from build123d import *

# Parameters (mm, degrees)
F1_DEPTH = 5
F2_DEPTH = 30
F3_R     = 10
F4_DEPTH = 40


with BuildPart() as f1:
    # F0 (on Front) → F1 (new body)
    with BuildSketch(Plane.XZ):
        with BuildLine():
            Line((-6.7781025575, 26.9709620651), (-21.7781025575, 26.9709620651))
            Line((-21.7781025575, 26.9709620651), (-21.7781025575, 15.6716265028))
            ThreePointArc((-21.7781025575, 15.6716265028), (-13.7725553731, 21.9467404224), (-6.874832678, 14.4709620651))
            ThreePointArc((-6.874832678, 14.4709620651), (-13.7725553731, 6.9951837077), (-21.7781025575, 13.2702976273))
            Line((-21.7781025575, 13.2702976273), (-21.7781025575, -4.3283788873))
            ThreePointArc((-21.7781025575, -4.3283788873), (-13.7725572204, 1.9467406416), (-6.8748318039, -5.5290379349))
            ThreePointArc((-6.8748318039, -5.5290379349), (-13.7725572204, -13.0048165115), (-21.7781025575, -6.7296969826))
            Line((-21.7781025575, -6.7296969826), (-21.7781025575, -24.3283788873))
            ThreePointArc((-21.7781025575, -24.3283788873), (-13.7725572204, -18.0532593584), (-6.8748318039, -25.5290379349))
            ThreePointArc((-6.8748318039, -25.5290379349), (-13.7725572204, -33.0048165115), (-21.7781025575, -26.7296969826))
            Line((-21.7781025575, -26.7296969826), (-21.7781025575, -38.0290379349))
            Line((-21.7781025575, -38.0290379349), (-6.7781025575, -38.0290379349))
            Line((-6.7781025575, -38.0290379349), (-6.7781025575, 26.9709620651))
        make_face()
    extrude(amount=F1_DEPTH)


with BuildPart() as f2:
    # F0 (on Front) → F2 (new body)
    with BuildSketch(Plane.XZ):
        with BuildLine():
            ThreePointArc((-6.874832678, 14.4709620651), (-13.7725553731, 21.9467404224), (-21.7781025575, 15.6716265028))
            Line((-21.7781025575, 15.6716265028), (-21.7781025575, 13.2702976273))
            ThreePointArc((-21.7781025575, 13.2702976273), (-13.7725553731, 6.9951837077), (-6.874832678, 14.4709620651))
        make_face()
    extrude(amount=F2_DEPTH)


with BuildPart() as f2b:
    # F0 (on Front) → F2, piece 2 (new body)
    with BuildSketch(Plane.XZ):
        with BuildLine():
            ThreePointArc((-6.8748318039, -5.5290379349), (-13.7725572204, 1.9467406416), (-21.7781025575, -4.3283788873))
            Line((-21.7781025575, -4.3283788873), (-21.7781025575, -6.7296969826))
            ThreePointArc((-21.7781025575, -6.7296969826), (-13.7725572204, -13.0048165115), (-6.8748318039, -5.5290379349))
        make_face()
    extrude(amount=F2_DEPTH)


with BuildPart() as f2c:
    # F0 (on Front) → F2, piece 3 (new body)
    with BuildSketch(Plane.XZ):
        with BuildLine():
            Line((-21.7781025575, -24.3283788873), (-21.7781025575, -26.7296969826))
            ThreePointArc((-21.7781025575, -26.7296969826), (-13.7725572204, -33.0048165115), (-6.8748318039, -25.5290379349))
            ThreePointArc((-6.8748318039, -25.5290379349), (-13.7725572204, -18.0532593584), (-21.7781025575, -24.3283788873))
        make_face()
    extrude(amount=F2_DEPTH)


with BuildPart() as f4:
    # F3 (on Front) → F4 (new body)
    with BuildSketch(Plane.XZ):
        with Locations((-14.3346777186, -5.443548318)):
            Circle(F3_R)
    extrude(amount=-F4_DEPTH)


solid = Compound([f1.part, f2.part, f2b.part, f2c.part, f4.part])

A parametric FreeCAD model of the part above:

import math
import FreeCAD as App
import Part
import Sketcher

doc = App.newDocument("Part")
body = doc.addObject("PartDesign::Body", "Body")

sketch1 = doc.addObject("Sketcher::SketchObject", "Sketch")
body.addObject(sketch1)
sketch1.AttachmentSupport = (doc.XZ_Plane, [""])
sketch1.MapMode = "FlatFace"
sketch1.addGeometry([
    Part.LineSegment(App.Vector(-6.778103, 26.970962, 0), App.Vector(-21.778103, 26.970962, 0)),
    Part.LineSegment(App.Vector(-21.778103, 26.970962, 0), App.Vector(-21.778103, 15.671627, 0)),
    Part.ArcOfCircle(Part.Circle(App.Vector(-14.374833, 14.470962, 0), App.Vector(0, 0, 1), 7.5), math.radians(0), math.radians(170.787962)),
    Part.ArcOfCircle(Part.Circle(App.Vector(-14.374833, 14.470962, 0), App.Vector(0, 0, 1), 7.5), math.radians(-170.787962), math.radians(0)),
    Part.LineSegment(App.Vector(-21.778103, 13.270298, 0), App.Vector(-21.778103, -4.328379, 0)),
    Part.ArcOfCircle(Part.Circle(App.Vector(-14.374832, -5.529038, 0), App.Vector(0, 0, 1), 7.5), math.radians(0), math.radians(170.788003)),
    Part.ArcOfCircle(Part.Circle(App.Vector(-14.374832, -5.529038, 0), App.Vector(0, 0, 1), 7.5), math.radians(-170.788003), math.radians(0)),
    Part.LineSegment(App.Vector(-21.778103, -6.729697, 0), App.Vector(-21.778103, -24.328379, 0)),
    Part.ArcOfCircle(Part.Circle(App.Vector(-14.374832, -25.529038, 0), App.Vector(0, 0, 1), 7.5), math.radians(0), math.radians(170.788003)),
    Part.ArcOfCircle(Part.Circle(App.Vector(-14.374832, -25.529038, 0), App.Vector(0, 0, 1), 7.5), math.radians(-170.788003), math.radians(0)),
    Part.LineSegment(App.Vector(-21.778103, -26.729697, 0), App.Vector(-21.778103, -38.029038, 0)),
    Part.LineSegment(App.Vector(-21.778103, -38.029038, 0), App.Vector(-6.778103, -38.029038, 0)),
    Part.LineSegment(App.Vector(-6.778103, -38.029038, 0), App.Vector(-6.778103, 26.970962, 0)),
], False)
sketch1.addConstraint([
    Sketcher.Constraint("Coincident", 0, 2, 1, 1),
    Sketcher.Constraint("Coincident", 1, 2, 2, 2),
    Sketcher.Constraint("Tangent", 2, 1, 3, 2),
    Sketcher.Constraint("Coincident", 3, 1, 4, 1),
    Sketcher.Constraint("Coincident", 4, 2, 5, 2),
    Sketcher.Constraint("Tangent", 5, 1, 6, 2),
    Sketcher.Constraint("Coincident", 6, 1, 7, 1),
    Sketcher.Constraint("Coincident", 7, 2, 8, 2),
    Sketcher.Constraint("Tangent", 8, 1, 9, 2),
    Sketcher.Constraint("Coincident", 9, 1, 10, 1),
    Sketcher.Constraint("Coincident", 10, 2, 11, 1),
    Sketcher.Constraint("Coincident", 11, 2, 12, 1),
    Sketcher.Constraint("Coincident", 12, 2, 0, 1),
    Sketcher.Constraint("Horizontal", 0),
    Sketcher.Constraint("Vertical", 1),
    Sketcher.Constraint("Vertical", 4),
    Sketcher.Constraint("Vertical", 7),
    Sketcher.Constraint("Vertical", 10),
    Sketcher.Constraint("Horizontal", 11),
    Sketcher.Constraint("Vertical", 12),
    Sketcher.Constraint("Equal", 2, 3),
    Sketcher.Constraint("Equal", 3, 5),
    Sketcher.Constraint("Equal", 5, 6),
    Sketcher.Constraint("Equal", 6, 8),
    Sketcher.Constraint("Equal", 8, 9),
    Sketcher.Constraint("Horizontal", 3, 3, 2, 1),
    Sketcher.Constraint("Horizontal", 6, 3, 5, 1),
    Sketcher.Constraint("Horizontal", 9, 3, 8, 1),
    Sketcher.Constraint("Vertical", 3, 3, 5, 3),
    Sketcher.Constraint("Vertical", 6, 3, 8, 3),
    Sketcher.Constraint("Vertical", 1, 2, 3, 1),
    Sketcher.Constraint("Vertical", 4, 2, 6, 1),
    Sketcher.Constraint("Vertical", 7, 2, 9, 1),
    Sketcher.Constraint("Radius", 2, 7.5),
    Sketcher.Constraint("DistanceX", 0, 2, 0, 1, 15.0),
    Sketcher.Constraint("DistanceY", 12, 1, 12, 2, 65.0),
    Sketcher.Constraint("DistanceY", 5, 3, 2, 3, 20.0),
    Sketcher.Constraint("DistanceY", 8, 3, 5, 3, 20.0),
    Sketcher.Constraint("DistanceY", 2, 3, 0, 2, 12.5),
    Sketcher.Constraint("DistanceY", 7, 2, 7, 1, 17.598682),
    Sketcher.Constraint("DistanceX", 5, 3, -1, 1, 14.374832),
    Sketcher.Constraint("DistanceY", 4, 2, -1, 1, 4.328379),
])
pad1 = doc.addObject("PartDesign::Pad", "Pad")
body.addObject(pad1)
pad1.Profile = sketch1
pad1.Length = 5
body2 = doc.addObject("PartDesign::Body", "Body001")

sketch2 = doc.addObject("Sketcher::SketchObject", "Sketch001")
body2.addObject(sketch2)
sketch2.AttachmentSupport = (doc.getObject("XZ_Plane001"), [""])
sketch2.MapMode = "FlatFace"
sketch2.addGeometry([
    Part.ArcOfCircle(Part.Circle(App.Vector(-14.374833, 14.470962, 0), App.Vector(0, 0, 1), 7.5), math.radians(0), math.radians(170.787962)),
    Part.LineSegment(App.Vector(-21.778103, 15.671627, 0), App.Vector(-21.778103, 13.270298, 0)),
    Part.ArcOfCircle(Part.Circle(App.Vector(-14.374833, 14.470962, 0), App.Vector(0, 0, 1), 7.5), math.radians(-170.787962), math.radians(0)),
], False)
sketch2.addConstraint([
    Sketcher.Constraint("Coincident", 0, 2, 1, 1),
    Sketcher.Constraint("Coincident", 1, 2, 2, 1),
    Sketcher.Constraint("Tangent", 2, 2, 0, 1),
    Sketcher.Constraint("Vertical", 1),
    Sketcher.Constraint("Equal", 0, 2),
    Sketcher.Constraint("Horizontal", 0, 3, 2, 2),
    Sketcher.Constraint("Radius", 0, 7.5),
    Sketcher.Constraint("DistanceY", 1, 2, 1, 1, 2.401329),
    Sketcher.Constraint("DistanceX", 0, 3, -1, 1, 14.374833),
    Sketcher.Constraint("DistanceY", -1, 1, 0, 3, 14.470962),
])
pad2 = doc.addObject("PartDesign::Pad", "Pad001")
body2.addObject(pad2)
pad2.Profile = sketch2
pad2.Length = 30
body3 = doc.addObject("PartDesign::Body", "Body002")

sketch3 = doc.addObject("Sketcher::SketchObject", "Sketch002")
body3.addObject(sketch3)
sketch3.AttachmentSupport = (doc.getObject("XZ_Plane002"), [""])
sketch3.MapMode = "FlatFace"
sketch3.addGeometry([
    Part.ArcOfCircle(Part.Circle(App.Vector(-14.374832, -5.529038, 0), App.Vector(0, 0, 1), 7.5), math.radians(0), math.radians(170.788003)),
    Part.LineSegment(App.Vector(-21.778103, -4.328379, 0), App.Vector(-21.778103, -6.729697, 0)),
    Part.ArcOfCircle(Part.Circle(App.Vector(-14.374832, -5.529038, 0), App.Vector(0, 0, 1), 7.5), math.radians(-170.788003), math.radians(0)),
], False)
sketch3.addConstraint([
    Sketcher.Constraint("Coincident", 0, 2, 1, 1),
    Sketcher.Constraint("Coincident", 1, 2, 2, 1),
    Sketcher.Constraint("Tangent", 2, 2, 0, 1),
    Sketcher.Constraint("Vertical", 1),
    Sketcher.Constraint("Equal", 0, 2),
    Sketcher.Constraint("Horizontal", 0, 3, 2, 2),
    Sketcher.Constraint("Radius", 0, 7.5),
    Sketcher.Constraint("DistanceY", 1, 2, 1, 1, 2.401318),
    Sketcher.Constraint("DistanceX", 0, 3, -1, 1, 14.374832),
    Sketcher.Constraint("DistanceY", 0, 2, -1, 1, 4.328379),
])
pad3 = doc.addObject("PartDesign::Pad", "Pad002")
body3.addObject(pad3)
pad3.Profile = sketch3
pad3.Length = 30
body4 = doc.addObject("PartDesign::Body", "Body003")

sketch4 = doc.addObject("Sketcher::SketchObject", "Sketch003")
body4.addObject(sketch4)
sketch4.AttachmentSupport = (doc.getObject("XZ_Plane003"), [""])
sketch4.MapMode = "FlatFace"
sketch4.addGeometry([
    Part.LineSegment(App.Vector(-21.778103, -24.328379, 0), App.Vector(-21.778103, -26.729697, 0)),
    Part.ArcOfCircle(Part.Circle(App.Vector(-14.374832, -25.529038, 0), App.Vector(0, 0, 1), 7.5), math.radians(-170.788003), math.radians(0)),
    Part.ArcOfCircle(Part.Circle(App.Vector(-14.374832, -25.529038, 0), App.Vector(0, 0, 1), 7.5), math.radians(0), math.radians(170.788003)),
], False)
sketch4.addConstraint([
    Sketcher.Constraint("Coincident", 0, 2, 1, 1),
    Sketcher.Constraint("Tangent", 1, 2, 2, 1),
    Sketcher.Constraint("Coincident", 2, 2, 0, 1),
    Sketcher.Constraint("Vertical", 0),
    Sketcher.Constraint("Equal", 1, 2),
    Sketcher.Constraint("Horizontal", 2, 3, 1, 2),
    Sketcher.Constraint("Radius", 1, 7.5),
    Sketcher.Constraint("DistanceY", 0, 2, 0, 1, 2.401318),
    Sketcher.Constraint("DistanceX", 1, 3, -1, 1, 14.374832),
    Sketcher.Constraint("DistanceY", 2, 2, -1, 1, 24.328379),
])
pad4 = doc.addObject("PartDesign::Pad", "Pad003")
body4.addObject(pad4)
pad4.Profile = sketch4
pad4.Length = 30
body5 = doc.addObject("PartDesign::Body", "Body004")

sketch5 = doc.addObject("Sketcher::SketchObject", "Sketch004")
body5.addObject(sketch5)
sketch5.AttachmentSupport = (doc.getObject("XZ_Plane004"), [""])
sketch5.MapMode = "FlatFace"
sketch5.addGeometry(Part.Circle(App.Vector(-14.334678, -5.443548, 0), App.Vector(0, 0, 1), 10), False)
sketch5.addConstraint([
    Sketcher.Constraint("Diameter", 0, 20.0),
    Sketcher.Constraint("DistanceY", 0, 3, -1, 1, 5.443548),
    Sketcher.Constraint("DistanceX", 0, 3, -1, 1, 14.334678),
])
pad5 = doc.addObject("PartDesign::Pad", "Pad004")
body5.addObject(pad5)
pad5.Profile = sketch5
pad5.Length = 40
pad5.Reversed = True

doc.recompute()
